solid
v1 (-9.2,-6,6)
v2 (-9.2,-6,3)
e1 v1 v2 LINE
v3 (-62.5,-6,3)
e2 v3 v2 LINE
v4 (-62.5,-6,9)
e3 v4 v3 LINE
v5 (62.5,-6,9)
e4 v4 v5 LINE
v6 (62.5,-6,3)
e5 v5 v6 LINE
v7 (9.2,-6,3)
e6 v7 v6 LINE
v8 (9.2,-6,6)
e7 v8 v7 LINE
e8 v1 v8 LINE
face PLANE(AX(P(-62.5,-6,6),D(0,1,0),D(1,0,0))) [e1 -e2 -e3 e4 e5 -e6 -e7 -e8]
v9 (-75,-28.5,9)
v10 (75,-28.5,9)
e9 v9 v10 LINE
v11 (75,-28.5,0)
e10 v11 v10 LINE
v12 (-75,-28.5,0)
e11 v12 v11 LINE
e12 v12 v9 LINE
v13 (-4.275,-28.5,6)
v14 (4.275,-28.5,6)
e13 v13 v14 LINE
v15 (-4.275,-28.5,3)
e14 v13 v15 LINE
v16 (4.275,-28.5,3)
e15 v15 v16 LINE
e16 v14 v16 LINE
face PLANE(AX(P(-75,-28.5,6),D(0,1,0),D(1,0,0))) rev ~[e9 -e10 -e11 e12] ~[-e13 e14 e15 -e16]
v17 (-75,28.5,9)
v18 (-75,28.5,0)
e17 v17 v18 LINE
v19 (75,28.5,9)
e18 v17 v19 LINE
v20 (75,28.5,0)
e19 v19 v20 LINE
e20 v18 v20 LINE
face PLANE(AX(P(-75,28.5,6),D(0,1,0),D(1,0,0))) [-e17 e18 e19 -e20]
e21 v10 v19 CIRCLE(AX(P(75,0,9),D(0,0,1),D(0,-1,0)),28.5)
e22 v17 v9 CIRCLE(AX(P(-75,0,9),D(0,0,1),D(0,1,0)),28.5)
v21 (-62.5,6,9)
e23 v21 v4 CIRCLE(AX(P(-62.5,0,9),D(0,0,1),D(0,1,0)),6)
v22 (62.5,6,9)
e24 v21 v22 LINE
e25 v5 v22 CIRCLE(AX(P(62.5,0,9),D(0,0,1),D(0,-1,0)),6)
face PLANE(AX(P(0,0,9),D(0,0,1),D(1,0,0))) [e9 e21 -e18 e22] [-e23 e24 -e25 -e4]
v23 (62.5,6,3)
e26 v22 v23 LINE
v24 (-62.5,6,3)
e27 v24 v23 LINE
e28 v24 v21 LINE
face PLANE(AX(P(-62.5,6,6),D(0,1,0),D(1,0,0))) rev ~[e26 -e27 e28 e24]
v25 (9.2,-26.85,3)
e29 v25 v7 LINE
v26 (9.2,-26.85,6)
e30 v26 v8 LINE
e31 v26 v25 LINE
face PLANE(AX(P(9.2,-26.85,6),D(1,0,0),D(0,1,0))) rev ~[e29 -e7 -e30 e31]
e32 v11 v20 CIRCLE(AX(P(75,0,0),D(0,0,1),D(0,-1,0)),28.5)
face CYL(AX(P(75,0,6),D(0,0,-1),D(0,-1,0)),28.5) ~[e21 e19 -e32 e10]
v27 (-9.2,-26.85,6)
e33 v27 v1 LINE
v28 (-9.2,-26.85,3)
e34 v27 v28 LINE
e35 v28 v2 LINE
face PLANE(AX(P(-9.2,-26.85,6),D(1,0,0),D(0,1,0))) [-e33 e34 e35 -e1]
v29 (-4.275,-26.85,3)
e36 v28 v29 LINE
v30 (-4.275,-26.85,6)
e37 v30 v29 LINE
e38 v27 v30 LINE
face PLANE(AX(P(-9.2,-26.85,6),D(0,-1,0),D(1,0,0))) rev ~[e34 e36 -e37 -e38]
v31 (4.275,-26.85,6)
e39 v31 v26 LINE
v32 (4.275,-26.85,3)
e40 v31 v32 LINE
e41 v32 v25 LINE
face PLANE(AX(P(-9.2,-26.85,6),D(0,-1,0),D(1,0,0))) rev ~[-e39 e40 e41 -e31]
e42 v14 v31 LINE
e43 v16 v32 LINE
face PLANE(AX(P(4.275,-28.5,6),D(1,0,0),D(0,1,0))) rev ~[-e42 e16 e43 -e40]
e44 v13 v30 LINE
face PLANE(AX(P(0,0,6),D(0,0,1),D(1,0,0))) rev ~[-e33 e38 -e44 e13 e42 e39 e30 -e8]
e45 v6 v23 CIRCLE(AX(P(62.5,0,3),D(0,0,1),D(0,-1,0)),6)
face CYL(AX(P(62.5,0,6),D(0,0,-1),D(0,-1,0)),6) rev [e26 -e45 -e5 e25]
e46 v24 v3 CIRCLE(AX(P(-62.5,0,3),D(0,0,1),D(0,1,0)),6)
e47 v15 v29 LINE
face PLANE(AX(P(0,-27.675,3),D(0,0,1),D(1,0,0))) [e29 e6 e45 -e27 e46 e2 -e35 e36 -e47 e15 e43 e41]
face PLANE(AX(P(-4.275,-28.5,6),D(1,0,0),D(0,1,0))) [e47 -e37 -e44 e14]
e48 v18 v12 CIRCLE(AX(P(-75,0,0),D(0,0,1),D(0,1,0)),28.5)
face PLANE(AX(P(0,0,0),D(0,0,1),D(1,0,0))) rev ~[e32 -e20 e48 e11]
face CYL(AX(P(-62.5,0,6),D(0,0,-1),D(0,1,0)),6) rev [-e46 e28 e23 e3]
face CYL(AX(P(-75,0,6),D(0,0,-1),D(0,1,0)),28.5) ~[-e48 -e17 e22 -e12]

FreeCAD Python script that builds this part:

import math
import FreeCAD as App
import Part
import Sketcher

doc = App.newDocument("Part")
body = doc.addObject("PartDesign::Body", "Body")

# Sketch on XY plane
sketch1 = doc.addObject("Sketcher::SketchObject", "Sketch")
body.addObject(sketch1)
sketch1.AttachmentSupport = (doc.XY_Plane, [""])
sketch1.MapMode = "FlatFace"
sketch1.addGeometry(Part.ArcOfCircle(Part.Circle(App.Vector(-75, 0, 0), App.Vector(0, 0, 1), 28), math.radians(90), math.radians(270)), False)
sketch1.addGeometry(Part.LineSegment(App.Vector(-75, -28, 0), App.Vector(75, -28, 0)), False)
sketch1.addGeometry(Part.ArcOfCircle(Part.Circle(App.Vector(75, 0, 0), App.Vector(0, 0, 1), 28), math.radians(-90), math.radians(90)), False)
sketch1.addGeometry(Part.LineSegment(App.Vector(75, 28, 0), App.Vector(-75, 28, 0)), False)
sketch1.addConstraint(Sketcher.Constraint("Tangent", 0, 2, 1, 1))
sketch1.addConstraint(Sketcher.Constraint("Tangent", 1, 2, 2, 1))
sketch1.addConstraint(Sketcher.Constraint("Tangent", 2, 2, 3, 1))
sketch1.addConstraint(Sketcher.Constraint("Tangent", 3, 2, 0, 1))
sketch1.addConstraint(Sketcher.Constraint("Horizontal", 1))
sketch1.addConstraint(Sketcher.Constraint("Horizontal", 3))
sketch1.addConstraint(Sketcher.Constraint("Symmetric", 0, 3, 2, 3, -1, 1))
sketch1.addConstraint(Sketcher.Constraint("Radius", 0, 28.5))
sketch1.addConstraint(Sketcher.Constraint("DistanceX", 1, 1, 1, 2, 150.0))
pad1 = doc.addObject("PartDesign::Pad", "Pad")
body.addObject(pad1)
pad1.Profile = sketch1
pad1.Length = 6

# Sketch on XY plane
sketch2 = doc.addObject("Sketcher::SketchObject", "Sketch001")
body.addObject(sketch2)
sketch2.AttachmentSupport = (doc.XY_Plane, [""])
sketch2.MapMode = "FlatFace"
sketch2.AttachmentOffset = App.Placement(App.Vector(0, 0, 6), App.Rotation())
sketch2.addGeometry(Part.ArcOfCircle(Part.Circle(App.Vector(-62, 0, 0), App.Vector(0, 0, 1), 6), math.radians(90), math.radians(270)), False)
sketch2.addGeometry(Part.LineSegment(App.Vector(-62, -6, 0), App.Vector(62, -6, 0)), False)
sketch2.addGeometry(Part.ArcOfCircle(Part.Circle(App.Vector(62, 0, 0), App.Vector(0, 0, 1), 6), math.radians(-90), math.radians(90)), False)
sketch2.addGeometry(Part.LineSegment(App.Vector(62, 6, 0), App.Vector(-62, 6, 0)), False)
sketch2.addConstraint(Sketcher.Constraint("Tangent", 0, 2, 1, 1))
sketch2.addConstraint(Sketcher.Constraint("Tangent", 1, 2, 2, 1))
sketch2.addConstraint(Sketcher.Constraint("Tangent", 2, 2, 3, 1))
sketch2.addConstraint(Sketcher.Constraint("Tangent", 3, 2, 0, 1))
sketch2.addConstraint(Sketcher.Constraint("Horizontal", 1))
sketch2.addConstraint(Sketcher.Constraint("Horizontal", 3))
sketch2.addConstraint(Sketcher.Constraint("Symmetric", 0, 3, 2, 3, -1, 1))
sketch2.addConstraint(Sketcher.Constraint("Radius", 0, 6.0))
sketch2.addConstraint(Sketcher.Constraint("DistanceX", 1, 1, 1, 2, 125.0))
pocket1 = doc.addObject("PartDesign::Pocket", "Pocket")
body.addObject(pocket1)
pocket1.Profile = sketch2
pocket1.Length = 3

# Sketch on XY plane
sketch3 = doc.addObject("Sketcher::SketchObject", "Sketch002")
body.addObject(sketch3)
sketch3.AttachmentSupport = (doc.XY_Plane, [""])
sketch3.MapMode = "FlatFace"
sketch3.AttachmentOffset = App.Placement(App.Vector(0, 0, 6), App.Rotation())
sketch3.addGeometry(Part.LineSegment(App.Vector(-9, -6, 0), App.Vector(-9, -27, 0)), False)
sketch3.addGeometry(Part.LineSegment(App.Vector(-9, -27, 0), App.Vector(9, -27, 0)), False)
sketch3.addGeometry(Part.LineSegment(App.Vector(9, -27, 0), App.Vector(9, -6, 0)), False)
sketch3.addGeometry(Part.LineSegment(App.Vector(9, -6, 0), App.Vector(-9, -6, 0)), False)
sketch3.addConstraint(Sketcher.Constraint("Coincident", 0, 2, 1, 1))
sketch3.addConstraint(Sketcher.Constraint("Coincident", 1, 2, 2, 1))
sketch3.addConstraint(Sketcher.Constraint("Coincident", 2, 2, 3, 1))
sketch3.addConstraint(Sketcher.Constraint("Coincident", 3, 2, 0, 1))
sketch3.addConstraint(Sketcher.Constraint("Vertical", 0))
sketch3.addConstraint(Sketcher.Constraint("Horizontal", 1))
sketch3.addConstraint(Sketcher.Constraint("Vertical", 2))
sketch3.addConstraint(Sketcher.Constraint("Horizontal", 3))
sketch3.addConstraint(Sketcher.Constraint("DistanceX", 1, 1, 1, 2, 18.4))
sketch3.addConstraint(Sketcher.Constraint("DistanceY", 2, 2, -1, 1, 6.0))
sketch3.addConstraint(Sketcher.Constraint("DistanceY", 0, 2, 0, 1, 20.85))
sketch3.addConstraint(Sketcher.Constraint("DistanceX", 0, 2, -1, 1, 9.2))
pocket2 = doc.addObject("PartDesign::Pocket", "Pocket001")
body.addObject(pocket2)
pocket2.Profile = sketch3
pocket2.Length = 3

# Sketch on XY plane
sketch4 = doc.addObject("Sketcher::SketchObject", "Sketch003")
body.addObject(sketch4)
sketch4.AttachmentSupport = (doc.XY_Plane, [""])
sketch4.MapMode = "FlatFace"
sketch4.AttachmentOffset = App.Placement(App.Vector(0, 0, 6), App.Rotation())
sketch4.addGeometry(Part.LineSegment(App.Vector(-4.3, -26.9, 0), App.Vector(-4.3, -28.5, 0)), False)
sketch4.addGeometry(Part.LineSegment(App.Vector(-4.3, -28.5, 0), App.Vector(4.3, -28.5, 0)), False)
sketch4.addGeometry(Part.LineSegment(App.Vector(4.3, -28.5, 0), App.Vector(4.3, -26.9, 0)), False)
sketch4.addGeometry(Part.LineSegment(App.Vector(4.3, -26.9, 0), App.Vector(-4.3, -26.9, 0)), False)
sketch4.addConstraint(Sketcher.Constraint("Coincident", 0, 2, 1, 1))
sketch4.addConstraint(Sketcher.Constraint("Coincident", 1, 2, 2, 1))
sketch4.addConstraint(Sketcher.Constraint("Coincident", 2, 2, 3, 1))
sketch4.addConstraint(Sketcher.Constraint("Coincident", 3, 2, 0, 1))
sketch4.addConstraint(Sketcher.Constraint("Vertical", 0))
sketch4.addConstraint(Sketcher.Constraint("Horizontal", 1))
sketch4.addConstraint(Sketcher.Constraint("Vertical", 2))
sketch4.addConstraint(Sketcher.Constraint("Horizontal", 3))
sketch4.addConstraint(Sketcher.Constraint("DistanceX", 1, 1, 1, 2, 8.55))
sketch4.addConstraint(Sketcher.Constraint("DistanceY", 0, 2, 0, 1, 1.65))
sketch4.addConstraint(Sketcher.Constraint("DistanceY", 0, 2, -1, 1, 28.5))
sketch4.addConstraint(Sketcher.Constraint("DistanceX", 0, 2, -1, 1, 4.275))
pocket3 = doc.addObject("PartDesign::Pocket", "Pocket002")
body.addObject(pocket3)
pocket3.Profile = sketch4
pocket3.Length = 3

# Sketch on XY plane
sketch5 = doc.addObject("Sketcher::SketchObject", "Sketch004")
body.addObject(sketch5)
sketch5.AttachmentSupport = (doc.XY_Plane, [""])
sketch5.MapMode = "FlatFace"
sketch5.AttachmentOffset = App.Placement(App.Vector(0, 0, 6), App.Rotation())
sketch5.addGeometry(Part.ArcOfCircle(Part.Circle(App.Vector(-75, 0, 0), App.Vector(0, 0, 1), 28), math.radians(90), math.radians(270)), False)
sketch5.addGeometry(Part.LineSegment(App.Vector(-75, -28, 0), App.Vector(75, -28, 0)), False)
sketch5.addGeometry(Part.ArcOfCircle(Part.Circle(App.Vector(75, 0, 0), App.Vector(0, 0, 1), 28), math.radians(-90), math.radians(90)), False)
sketch5.addGeometry(Part.LineSegment(App.Vector(75, 28, 0), App.Vector(-75, 28, 0)), False)
sketch5.addGeometry(Part.ArcOfCircle(Part.Circle(App.Vector(-62, 0, 0), App.Vector(0, 0, 1), 6), math.radians(90), math.radians(270)), False)
sketch5.addGeometry(Part.LineSegment(App.Vector(-62, 6, 0), App.Vector(62, 6, 0)), False)
sketch5.addGeometry(Part.ArcOfCircle(Part.Circle(App.Vector(62, 0, 0), App.Vector(0, 0, 1), 6), math.radians(-90), math.radians(90)), False)
sketch5.addGeometry(Part.LineSegment(App.Vector(62, -6, 0), App.Vector(-62, -6, 0)), False)
sketch5.addConstraint(Sketcher.Constraint("Tangent", 0, 2, 1, 1))
sketch5.addConstraint(Sketcher.Constraint("Tangent", 1, 2, 2, 1))
sketch5.addConstraint(Sketcher.Constraint("Tangent", 2, 2, 3, 1))
sketch5.addConstraint(Sketcher.Constraint("Tangent", 3, 2, 0, 1))
sketch5.addConstraint(Sketcher.Constraint("Tangent", 4, 1, 5, 1))
sketch5.addConstraint(Sketcher.Constraint("Tangent", 5, 2, 6, 2))
sketch5.addConstraint(Sketcher.Constraint("Tangent", 6, 1, 7, 1))
sketch5.addConstraint(Sketcher.Constraint("Tangent", 7, 2, 4, 2))
sketch5.addConstraint(Sketcher.Constraint("Horizontal", 1))
sketch5.addConstraint(Sketcher.Constraint("Horizontal", 3))
sketch5.addConstraint(Sketcher.Constraint("Horizontal", 5))
sketch5.addConstraint(Sketcher.Constraint("Horizontal", 7))
sketch5.addConstraint(Sketcher.Constraint("Symmetric", 0, 3, 2, 3, -1, 1))
sketch5.addConstraint(Sketcher.Constraint("Symmetric", 4, 3, 6, 3, -1, 1))
sketch5.addConstraint(Sketcher.Constraint("Radius", 4, 6.0))
sketch5.addConstraint(Sketcher.Constraint("Radius", 0, 28.5))
sketch5.addConstraint(Sketcher.Constraint("DistanceX", 1, 1, 1, 2, 150.0))
sketch5.addConstraint(Sketcher.Constraint("DistanceX", 5, 1, 5, 2, 125.0))
pad2 = doc.addObject("PartDesign::Pad", "Pad001")
body.addObject(pad2)
pad2.Profile = sketch5
pad2.Length = 3

doc.recompute()
